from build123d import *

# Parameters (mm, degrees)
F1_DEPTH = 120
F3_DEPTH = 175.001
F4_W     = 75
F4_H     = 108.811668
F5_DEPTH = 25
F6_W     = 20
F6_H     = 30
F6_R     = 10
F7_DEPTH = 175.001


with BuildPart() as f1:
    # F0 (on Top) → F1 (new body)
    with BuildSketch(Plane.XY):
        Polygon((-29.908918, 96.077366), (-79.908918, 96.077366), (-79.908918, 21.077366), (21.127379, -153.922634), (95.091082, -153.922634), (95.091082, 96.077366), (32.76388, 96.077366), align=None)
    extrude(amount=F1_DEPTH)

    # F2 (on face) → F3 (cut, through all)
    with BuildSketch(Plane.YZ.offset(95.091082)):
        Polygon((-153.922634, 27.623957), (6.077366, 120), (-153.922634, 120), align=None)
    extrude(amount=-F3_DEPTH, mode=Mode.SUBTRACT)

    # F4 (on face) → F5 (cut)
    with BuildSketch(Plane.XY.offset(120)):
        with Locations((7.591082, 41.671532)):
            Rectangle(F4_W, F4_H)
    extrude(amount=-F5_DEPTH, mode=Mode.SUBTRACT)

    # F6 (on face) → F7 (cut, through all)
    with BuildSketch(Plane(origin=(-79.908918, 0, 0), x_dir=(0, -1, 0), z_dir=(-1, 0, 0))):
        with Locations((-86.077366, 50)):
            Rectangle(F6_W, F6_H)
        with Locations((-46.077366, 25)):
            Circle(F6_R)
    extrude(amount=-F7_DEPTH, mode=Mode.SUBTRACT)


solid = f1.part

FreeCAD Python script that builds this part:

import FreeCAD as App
import Part
import Sketcher

V = App.Vector
Q = App.Units.Quantity


def add_polygon(sketch, points):
    """Adds a closed chain of lines whose ends are joined by coincident constraints."""
    first, n = sketch.GeometryCount, len(points)
    for a, b in zip(points, points[1:] + points[:1]):
        sketch.addGeometry(Part.LineSegment(App.Vector(*a, 0), App.Vector(*b, 0)), False)
    for i in range(n):
        sketch.addConstraint(Sketcher.Constraint("Coincident", first + i, 2, first + (i + 1) % n, 1))

doc = App.newDocument("Part")
params = doc.addObject("Spreadsheet::Sheet", "Params")
for row, (alias, value) in enumerate([
    ("sketch1_width", "175 mm"),
    ("sketch1_height", "75 mm"),
    ("sketch1_height2", "250 mm"),
    ("pad1_length", "120 mm"),
    ("sketch2_width", "160 mm"),
    ("sketch3_width", "75 mm"),
    ("pocket2_length", "25 mm"),
    ("sketch4_diameter", "20 mm"),
    ("sketch4_width", "20 mm"),
    ("sketch4_height", "30 mm"),
], start=1):
    params.set(f"A{row}", alias)
    params.set(f"B{row}", "=" + value)
    params.setAlias(f"B{row}", alias)

body = doc.addObject("PartDesign::Body", "Body")

# Sketch on XY plane
sketch1 = doc.addObject("Sketcher::SketchObject", "Sketch")
body.addObject(sketch1)
sketch1.AttachmentSupport = (doc.XY_Plane, [""])
sketch1.MapMode = "FlatFace"
add_polygon(sketch1, [(-80, 96), (-80, 21), (21, -154), (95, -154), (95, 96)])  # lines 0-4
sketch1.addConstraint([
    Sketcher.Constraint("Vertical", 0),
    Sketcher.Constraint("Horizontal", 2),
    Sketcher.Constraint("Vertical", 3),
    Sketcher.Constraint("Horizontal", 4),
    Sketcher.Constraint("DistanceX", 4, 2, 4, 1, 175.0),
    Sketcher.Constraint("DistanceY", 0, 2, 0, 1, 75.0),
    Sketcher.Constraint("DistanceY", 3, 1, 3, 2, 250.0),
    Sketcher.Constraint("Angle", 1, Q("-60 deg")),
    Sketcher.Constraint("DistanceX", 0, 2, -1, 1, 79.908918),
    Sketcher.Constraint("DistanceY", -1, 1, 0, 2, 21.077366),
])
sketch1.setExpression("Constraints[9]", "Params.sketch1_width")
sketch1.setExpression("Constraints[10]", "Params.sketch1_height")
sketch1.setExpression("Constraints[11]", "Params.sketch1_height2")
pad1 = doc.addObject("PartDesign::Pad", "Pad")
body.addObject(pad1)
pad1.Profile = sketch1
pad1.setExpression("Length", "Params.pad1_length")

# Sketch on YZ plane
sketch2 = doc.addObject("Sketcher::SketchObject", "Sketch001")
body.addObject(sketch2)
sketch2.AttachmentSupport = (doc.YZ_Plane, [""])
sketch2.MapMode = "FlatFace"
sketch2.AttachmentOffset = App.Placement(V(0, 0, 95.091082), App.Rotation())
add_polygon(sketch2, [(-154, 28), (6, 120), (-154, 120)])  # lines 0-2
sketch2.addConstraint([
    Sketcher.Constraint("Horizontal", 1),
    Sketcher.Constraint("Vertical", 2),
    Sketcher.Constraint("DistanceX", 1, 2, 1, 1, 160.0),
    Sketcher.Constraint("Angle", 0, Q("30 deg")),
    Sketcher.Constraint("DistanceY", -1, 1, 0, 2, 120.0),
    Sketcher.Constraint("DistanceX", -1, 1, 0, 2, 6.077366),
])
sketch2.setExpression("Constraints[5]", "Params.sketch2_width")
pocket1 = doc.addObject("PartDesign::Pocket", "Pocket")
body.addObject(pocket1)
pocket1.Profile = sketch2
pocket1.Type = "ThroughAll"

# Sketch on XY plane
sketch3 = doc.addObject("Sketcher::SketchObject", "Sketch002")
body.addObject(sketch3)
sketch3.AttachmentSupport = (doc.XY_Plane, [""])
sketch3.MapMode = "FlatFace"
sketch3.AttachmentOffset = App.Placement(V(0, 0, 120), App.Rotation())
add_polygon(sketch3, [(-30, 96), (-30, -13), (45, -13), (45, 96)])  # lines 0-3
sketch3.addConstraint([
    Sketcher.Constraint("Vertical", 0),
    Sketcher.Constraint("Horizontal", 1),
    Sketcher.Constraint("Vertical", 2),
    Sketcher.Constraint("Horizontal", 3),
    Sketcher.Constraint("DistanceX", 1, 1, 1, 2, 75.0),
    Sketcher.Constraint("DistanceY", 0, 2, 0, 1, 108.811668),
    Sketcher.Constraint("DistanceX", 0, 2, -1, 1, 29.908918),
    Sketcher.Constraint("DistanceY", 0, 2, -1, 1, 12.734302),
])
sketch3.setExpression("Constraints[8]", "Params.sketch3_width")
pocket2 = doc.addObject("PartDesign::Pocket", "Pocket001")
body.addObject(pocket2)
pocket2.Profile = sketch3
pocket2.setExpression("Length", "Params.pocket2_length")

# Sketch on YZ plane
sketch4 = doc.addObject("Sketcher::SketchObject", "Sketch003")
body.addObject(sketch4)
sketch4.AttachmentSupport = (doc.YZ_Plane, [""])
sketch4.MapMode = "FlatFace"
sketch4.AttachmentOffset = App.Placement(V(0, 0, -79.908918), App.Rotation())
add_polygon(sketch4, [(96, 65), (96, 35), (76, 35), (76, 65)])  # lines 0-3
sketch4.addGeometry(Part.Circle(V(46, 25, 0), V(0, 0, 1), 10), False)  # 4
sketch4.addConstraint([
    Sketcher.Constraint("Vertical", 0),
    Sketcher.Constraint("Horizontal", 1),
    Sketcher.Constraint("Vertical", 2),
    Sketcher.Constraint("Horizontal", 3),
    Sketcher.Constraint("Diameter", 4, 20.0),
    Sketcher.Constraint("DistanceX", 1, 2, 1, 1, 20.0),
    Sketcher.Constraint("DistanceY", 0, 2, 0, 1, 30.0),
    Sketcher.Constraint("DistanceY", -1, 1, 4, 3, 25.0),
    Sketcher.Constraint("DistanceY", -1, 1, 0, 2, 35.0),
    Sketcher.Constraint("DistanceX", 4, 3, 0, 2, 50.0),
    Sketcher.Constraint("DistanceX", -1, 1, 4, 3, 46.077366),
])
sketch4.setExpression("Constraints[8]", "Params.sketch4_diameter")
sketch4.setExpression("Constraints[9]", "Params.sketch4_width")
sketch4.setExpression("Constraints[10]", "Params.sketch4_height")
pocket3 = doc.addObject("PartDesign::Pocket", "Pocket002")
body.addObject(pocket3)
pocket3.Profile = sketch4
pocket3.Type = "ThroughAll"
pocket3.Reversed = True

doc.recompute()
